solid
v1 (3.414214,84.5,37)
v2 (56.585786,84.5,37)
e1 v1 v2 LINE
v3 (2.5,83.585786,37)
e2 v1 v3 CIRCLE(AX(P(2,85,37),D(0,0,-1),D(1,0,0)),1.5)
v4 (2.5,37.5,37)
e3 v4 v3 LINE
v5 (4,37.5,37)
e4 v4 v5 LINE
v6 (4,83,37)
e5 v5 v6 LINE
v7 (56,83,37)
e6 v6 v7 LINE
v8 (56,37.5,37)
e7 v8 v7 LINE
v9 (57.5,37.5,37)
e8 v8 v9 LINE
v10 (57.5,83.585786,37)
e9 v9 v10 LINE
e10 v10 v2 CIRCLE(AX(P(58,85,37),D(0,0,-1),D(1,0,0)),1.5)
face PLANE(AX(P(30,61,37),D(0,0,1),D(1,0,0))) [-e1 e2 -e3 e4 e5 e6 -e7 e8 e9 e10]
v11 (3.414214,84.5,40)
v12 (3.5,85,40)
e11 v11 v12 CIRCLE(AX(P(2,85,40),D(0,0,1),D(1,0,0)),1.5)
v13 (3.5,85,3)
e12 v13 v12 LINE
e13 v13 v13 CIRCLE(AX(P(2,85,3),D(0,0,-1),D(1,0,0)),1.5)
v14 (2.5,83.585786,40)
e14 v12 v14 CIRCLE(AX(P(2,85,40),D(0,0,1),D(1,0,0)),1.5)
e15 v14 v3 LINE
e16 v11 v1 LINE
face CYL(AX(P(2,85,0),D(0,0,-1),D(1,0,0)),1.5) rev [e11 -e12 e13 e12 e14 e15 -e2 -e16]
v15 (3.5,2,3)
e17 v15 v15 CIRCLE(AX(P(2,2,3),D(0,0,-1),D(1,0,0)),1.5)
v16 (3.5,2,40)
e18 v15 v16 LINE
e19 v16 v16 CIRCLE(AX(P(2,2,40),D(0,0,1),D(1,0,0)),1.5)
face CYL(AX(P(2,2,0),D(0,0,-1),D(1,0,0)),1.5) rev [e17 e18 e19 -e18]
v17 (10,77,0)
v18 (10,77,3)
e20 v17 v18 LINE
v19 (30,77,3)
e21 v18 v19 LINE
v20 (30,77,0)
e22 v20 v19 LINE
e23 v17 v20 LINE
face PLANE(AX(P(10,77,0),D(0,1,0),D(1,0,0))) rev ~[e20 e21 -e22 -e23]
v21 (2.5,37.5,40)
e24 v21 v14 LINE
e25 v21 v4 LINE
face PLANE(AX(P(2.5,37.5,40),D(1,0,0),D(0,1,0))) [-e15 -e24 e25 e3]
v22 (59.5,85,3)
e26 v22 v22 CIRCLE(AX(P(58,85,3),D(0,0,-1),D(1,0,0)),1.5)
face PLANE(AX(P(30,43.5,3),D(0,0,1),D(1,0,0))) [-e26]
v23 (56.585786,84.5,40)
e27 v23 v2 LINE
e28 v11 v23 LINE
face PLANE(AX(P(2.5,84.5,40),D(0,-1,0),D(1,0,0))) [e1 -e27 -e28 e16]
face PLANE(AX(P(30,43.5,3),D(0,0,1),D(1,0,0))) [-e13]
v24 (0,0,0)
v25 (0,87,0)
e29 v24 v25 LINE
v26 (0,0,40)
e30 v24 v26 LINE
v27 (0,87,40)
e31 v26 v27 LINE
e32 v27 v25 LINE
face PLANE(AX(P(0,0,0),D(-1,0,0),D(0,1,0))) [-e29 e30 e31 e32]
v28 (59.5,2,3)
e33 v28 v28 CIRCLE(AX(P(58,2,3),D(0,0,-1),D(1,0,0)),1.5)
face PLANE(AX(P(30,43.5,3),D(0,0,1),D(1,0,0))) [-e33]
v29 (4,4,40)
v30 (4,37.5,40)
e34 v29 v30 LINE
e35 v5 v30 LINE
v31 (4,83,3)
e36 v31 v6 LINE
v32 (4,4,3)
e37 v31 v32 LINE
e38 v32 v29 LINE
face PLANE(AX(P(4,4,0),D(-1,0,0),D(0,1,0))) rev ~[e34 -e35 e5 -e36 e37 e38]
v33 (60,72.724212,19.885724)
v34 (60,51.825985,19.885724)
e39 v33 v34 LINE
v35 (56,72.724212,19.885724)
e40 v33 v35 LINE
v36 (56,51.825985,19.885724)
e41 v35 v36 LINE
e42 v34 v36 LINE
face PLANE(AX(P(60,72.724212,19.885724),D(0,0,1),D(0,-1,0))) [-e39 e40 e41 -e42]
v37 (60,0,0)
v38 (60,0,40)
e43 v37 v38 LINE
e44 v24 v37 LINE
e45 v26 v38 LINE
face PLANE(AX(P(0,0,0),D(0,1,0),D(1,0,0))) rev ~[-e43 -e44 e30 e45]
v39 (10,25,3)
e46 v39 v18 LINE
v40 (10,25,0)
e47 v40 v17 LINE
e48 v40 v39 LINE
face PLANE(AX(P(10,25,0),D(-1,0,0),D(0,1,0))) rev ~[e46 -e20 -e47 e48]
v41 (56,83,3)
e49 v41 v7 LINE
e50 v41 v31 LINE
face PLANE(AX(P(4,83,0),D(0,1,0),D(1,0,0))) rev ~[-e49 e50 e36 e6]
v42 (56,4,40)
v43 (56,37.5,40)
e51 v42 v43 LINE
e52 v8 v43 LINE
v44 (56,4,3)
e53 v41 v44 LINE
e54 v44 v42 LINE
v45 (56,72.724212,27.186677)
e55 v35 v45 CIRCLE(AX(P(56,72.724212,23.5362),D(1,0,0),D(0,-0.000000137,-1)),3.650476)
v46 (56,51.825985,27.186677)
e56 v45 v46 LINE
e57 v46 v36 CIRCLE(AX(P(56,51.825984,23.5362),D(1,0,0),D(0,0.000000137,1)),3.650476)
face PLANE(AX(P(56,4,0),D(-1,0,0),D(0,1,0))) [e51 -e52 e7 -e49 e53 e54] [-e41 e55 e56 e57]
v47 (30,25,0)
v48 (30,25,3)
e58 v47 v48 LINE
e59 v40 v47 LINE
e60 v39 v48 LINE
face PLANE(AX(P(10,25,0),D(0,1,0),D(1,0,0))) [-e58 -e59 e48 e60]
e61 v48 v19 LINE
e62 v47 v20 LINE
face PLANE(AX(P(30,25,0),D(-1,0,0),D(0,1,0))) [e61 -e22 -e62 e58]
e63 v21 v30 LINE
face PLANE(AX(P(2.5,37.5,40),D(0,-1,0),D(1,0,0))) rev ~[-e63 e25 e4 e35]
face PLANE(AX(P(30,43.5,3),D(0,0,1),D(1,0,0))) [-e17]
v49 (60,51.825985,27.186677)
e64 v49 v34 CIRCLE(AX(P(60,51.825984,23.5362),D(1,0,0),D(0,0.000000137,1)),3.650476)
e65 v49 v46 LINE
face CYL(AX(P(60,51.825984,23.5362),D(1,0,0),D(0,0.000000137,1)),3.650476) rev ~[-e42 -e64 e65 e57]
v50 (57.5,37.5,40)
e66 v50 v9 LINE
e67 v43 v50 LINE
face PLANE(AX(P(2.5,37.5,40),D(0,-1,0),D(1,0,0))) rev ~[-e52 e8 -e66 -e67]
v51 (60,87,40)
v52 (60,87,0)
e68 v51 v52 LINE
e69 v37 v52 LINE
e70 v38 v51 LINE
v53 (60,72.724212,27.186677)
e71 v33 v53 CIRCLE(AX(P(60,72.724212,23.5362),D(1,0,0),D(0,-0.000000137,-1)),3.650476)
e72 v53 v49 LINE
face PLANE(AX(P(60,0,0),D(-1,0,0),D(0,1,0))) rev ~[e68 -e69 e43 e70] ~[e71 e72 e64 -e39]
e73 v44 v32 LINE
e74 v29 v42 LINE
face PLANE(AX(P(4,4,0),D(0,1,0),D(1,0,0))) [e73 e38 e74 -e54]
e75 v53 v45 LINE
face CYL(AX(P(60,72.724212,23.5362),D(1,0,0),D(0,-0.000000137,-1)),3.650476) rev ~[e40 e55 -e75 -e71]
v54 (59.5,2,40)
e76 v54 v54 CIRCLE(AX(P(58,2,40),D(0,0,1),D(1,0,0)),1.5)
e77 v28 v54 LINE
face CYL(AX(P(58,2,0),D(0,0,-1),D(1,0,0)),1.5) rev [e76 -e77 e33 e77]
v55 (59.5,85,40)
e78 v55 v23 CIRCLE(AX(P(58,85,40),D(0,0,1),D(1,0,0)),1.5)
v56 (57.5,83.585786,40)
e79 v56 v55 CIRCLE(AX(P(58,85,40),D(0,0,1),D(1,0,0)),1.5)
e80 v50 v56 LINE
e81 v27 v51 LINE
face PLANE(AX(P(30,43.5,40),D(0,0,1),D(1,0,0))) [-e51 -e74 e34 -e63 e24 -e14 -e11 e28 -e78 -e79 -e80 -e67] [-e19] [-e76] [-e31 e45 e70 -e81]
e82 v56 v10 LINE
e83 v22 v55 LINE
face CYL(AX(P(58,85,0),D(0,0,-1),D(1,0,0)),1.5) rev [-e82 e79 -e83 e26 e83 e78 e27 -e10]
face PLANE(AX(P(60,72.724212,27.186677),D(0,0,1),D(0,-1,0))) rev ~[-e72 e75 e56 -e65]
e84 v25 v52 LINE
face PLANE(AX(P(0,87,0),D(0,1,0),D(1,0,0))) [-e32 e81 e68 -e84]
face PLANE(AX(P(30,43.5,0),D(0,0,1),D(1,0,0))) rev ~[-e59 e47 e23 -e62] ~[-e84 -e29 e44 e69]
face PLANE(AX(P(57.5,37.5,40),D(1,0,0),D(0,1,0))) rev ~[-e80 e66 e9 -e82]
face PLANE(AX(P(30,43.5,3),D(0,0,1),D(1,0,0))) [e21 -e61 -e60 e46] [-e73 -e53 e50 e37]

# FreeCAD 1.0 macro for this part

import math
import FreeCAD as App
import Part
import Sketcher

V = App.Vector
Q = App.Units.Quantity


def add_polygon(sketch, points):
    """Adds a closed chain of lines whose ends are joined by coincident constraints."""
    first, n = sketch.GeometryCount, len(points)
    for a, b in zip(points, points[1:] + points[:1]):
        sketch.addGeometry(Part.LineSegment(App.Vector(*a, 0), App.Vector(*b, 0)), False)
    for i in range(n):
        sketch.addConstraint(Sketcher.Constraint("Coincident", first + i, 2, first + (i + 1) % n, 1))

doc = App.newDocument("Part")
body = doc.addObject("PartDesign::Body", "Body")

sketch1 = body.newObject("Sketcher::SketchObject", "Sketch")
sketch1.AttachmentSupport = (doc.getObject("XY_Plane"), [""])
sketch1.MapMode = "FlatFace"
add_polygon(sketch1, [(0, 87), (0, 0), (60, 0), (60, 87)])
add_polygon(sketch1, [(30, 25), (10, 25), (10, 77), (30, 77)])
sketch1.addConstraint(Sketcher.Constraint("Vertical", 0))
sketch1.addConstraint(Sketcher.Constraint("Horizontal", 1))
sketch1.addConstraint(Sketcher.Constraint("Vertical", 2))
sketch1.addConstraint(Sketcher.Constraint("Horizontal", 3))
sketch1.addConstraint(Sketcher.Constraint("Horizontal", 4))
sketch1.addConstraint(Sketcher.Constraint("Vertical", 5))
sketch1.addConstraint(Sketcher.Constraint("Horizontal", 6))
sketch1.addConstraint(Sketcher.Constraint("Vertical", 7))
sketch1.addConstraint(Sketcher.Constraint("Coincident", 0, 2, -1, 1))
sketch1.addConstraint(Sketcher.Constraint("DistanceX", 1, 1, 1, 2, Q("60 mm")))
sketch1.addConstraint(Sketcher.Constraint("DistanceX", 4, 2, 4, 1, Q("20 mm")))
sketch1.addConstraint(Sketcher.Constraint("DistanceY", 0, 2, 0, 1, Q("87 mm")))
sketch1.addConstraint(Sketcher.Constraint("DistanceY", 5, 1, 5, 2, Q("52 mm")))
sketch1.addConstraint(Sketcher.Constraint("DistanceX", -1, 1, 4, 2, Q("10 mm")))
sketch1.addConstraint(Sketcher.Constraint("DistanceY", -1, 1, 4, 2, Q("25 mm")))
pad1 = body.newObject("PartDesign::Pad", "Pad")
pad1.Profile = sketch1
pad1.Length = 3

sketch2 = body.newObject("Sketcher::SketchObject", "Sketch001")
sketch2.AttachmentSupport = (doc.getObject("XY_Plane"), [""])
sketch2.MapMode = "FlatFace"
add_polygon(sketch2, [(0, 87), (0, 0), (60, 0), (60, 87)])
sketch2.addGeometry(Part.Circle(V(2, 2, 0), V(0, 0, 1), 1.5), False)
sketch2.addGeometry(Part.Circle(V(58, 2, 0), V(0, 0, 1), 1.5), False)
sketch2.addGeometry(Part.Circle(V(2, 85, 0), V(0, 0, 1), 1.5), False)
add_polygon(sketch2, [(56, 4), (4, 4), (4, 83), (56, 83)])
sketch2.addGeometry(Part.Circle(V(58, 85, 0), V(0, 0, 1), 1.5), False)
sketch2.addConstraint(Sketcher.Constraint("Vertical", 0))
sketch2.addConstraint(Sketcher.Constraint("Horizontal", 1))
sketch2.addConstraint(Sketcher.Constraint("Vertical", 2))
sketch2.addConstraint(Sketcher.Constraint("Horizontal", 3))
sketch2.addConstraint(Sketcher.Constraint("Horizontal", 7))
sketch2.addConstraint(Sketcher.Constraint("Vertical", 8))
sketch2.addConstraint(Sketcher.Constraint("Horizontal", 9))
sketch2.addConstraint(Sketcher.Constraint("Vertical", 10))
sketch2.addConstraint(Sketcher.Constraint("Coincident", 0, 2, -1, 1))
sketch2.addConstraint(Sketcher.Constraint("Equal", 4, 5))
sketch2.addConstraint(Sketcher.Constraint("Equal", 5, 6))
sketch2.addConstraint(Sketcher.Constraint("Equal", 6, 11))
sketch2.addConstraint(Sketcher.Constraint("Horizontal", 4, 3, 5, 3))
sketch2.addConstraint(Sketcher.Constraint("Horizontal", 6, 3, 11, 3))
sketch2.addConstraint(Sketcher.Constraint("Vertical", 4, 3, 6, 3))
sketch2.addConstraint(Sketcher.Constraint("Vertical", 5, 3, 11, 3))
sketch2.addConstraint(Sketcher.Constraint("Diameter", 4, Q("3 mm")))
sketch2.addConstraint(Sketcher.Constraint("DistanceX", 1, 1, 1, 2, Q("60 mm")))
sketch2.addConstraint(Sketcher.Constraint("DistanceX", 7, 2, 7, 1, Q("52 mm")))
sketch2.addConstraint(Sketcher.Constraint("DistanceY", 0, 2, 0, 1, Q("87 mm")))
sketch2.addConstraint(Sketcher.Constraint("DistanceY", 8, 1, 8, 2, Q("79 mm")))
sketch2.addConstraint(Sketcher.Constraint("DistanceX", -1, 1, 4, 3, Q("2 mm")))
sketch2.addConstraint(Sketcher.Constraint("DistanceY", -1, 1, 4, 3, Q("2 mm")))
sketch2.addConstraint(Sketcher.Constraint("DistanceX", -1, 1, 5, 3, Q("58 mm")))
sketch2.addConstraint(Sketcher.Constraint("DistanceY", -1, 1, 6, 3, Q("85 mm")))
sketch2.addConstraint(Sketcher.Constraint("DistanceX", -1, 1, 7, 2, Q("4 mm")))
sketch2.addConstraint(Sketcher.Constraint("DistanceY", -1, 1, 7, 2, Q("4 mm")))
pad2 = body.newObject("PartDesign::Pad", "Pad001")
pad2.Profile = sketch2
pad2.Length = 40

sketch3 = body.newObject("Sketcher::SketchObject", "Sketch002")
sketch3.AttachmentSupport = (doc.getObject("XY_Plane"), [""])
sketch3.MapMode = "FlatFace"
sketch3.AttachmentOffset = App.Placement(V(0, 0, 40), App.Rotation())
add_polygon(sketch3, [(2, 84), (2, 38), (58, 38), (58, 84)])
sketch3.addConstraint(Sketcher.Constraint("Vertical", 0))
sketch3.addConstraint(Sketcher.Constraint("Horizontal", 1))
sketch3.addConstraint(Sketcher.Constraint("Vertical", 2))
sketch3.addConstraint(Sketcher.Constraint("Horizontal", 3))
sketch3.addConstraint(Sketcher.Constraint("DistanceX", 1, 1, 1, 2, Q("55 mm")))
sketch3.addConstraint(Sketcher.Constraint("DistanceY", 0, 2, 0, 1, Q("47 mm")))
sketch3.addConstraint(Sketcher.Constraint("DistanceX", -1, 1, 0, 2, Q("2.5 mm")))
sketch3.addConstraint(Sketcher.Constraint("DistanceY", -1, 1, 0, 2, Q("37.5 mm")))
pocket1 = body.newObject("PartDesign::Pocket", "Pocket")
pocket1.Profile = sketch3
pocket1.Length = 3

sketch4 = body.newObject("Sketcher::SketchObject", "Sketch003")
sketch4.AttachmentSupport = (doc.getObject("YZ_Plane"), [""])
sketch4.MapMode = "FlatFace"
sketch4.AttachmentOffset = App.Placement(V(0, 0, 60), App.Rotation())
sketch4.addGeometry(Part.ArcOfCircle(Part.Circle(V(72.7, 23.5, 0), V(0, 0, 1), 3.7), math.radians(-90), math.radians(90)), False)
sketch4.addGeometry(Part.LineSegment(V(72.7, 27.2, 0), V(51.8, 27.2, 0)), False)
sketch4.addGeometry(Part.ArcOfCircle(Part.Circle(V(51.8, 23.5, 0), V(0, 0, 1), 3.7), math.radians(90), math.radians(270)), False)
sketch4.addGeometry(Part.LineSegment(V(51.8, 19.9, 0), V(72.7, 19.9, 0)), False)
sketch4.addConstraint(Sketcher.Constraint("Tangent", 0, 2, 1, 1))
sketch4.addConstraint(Sketcher.Constraint("Tangent", 1, 2, 2, 1))
sketch4.addConstraint(Sketcher.Constraint("Tangent", 2, 2, 3, 1))
sketch4.addConstraint(Sketcher.Constraint("Tangent", 3, 2, 0, 1))
sketch4.addConstraint(Sketcher.Constraint("Horizontal", 1))
sketch4.addConstraint(Sketcher.Constraint("Horizontal", 3))
sketch4.addConstraint(Sketcher.Constraint("Radius", 0, Q("3.650476 mm")))
sketch4.addConstraint(Sketcher.Constraint("DistanceY", -1, 1, 0, 3, Q("23.5362 mm")))
sketch4.addConstraint(Sketcher.Constraint("DistanceX", 1, 2, 1, 1, Q("20.898227 mm")))
sketch4.addConstraint(Sketcher.Constraint("DistanceX", -1, 1, 0, 2, Q("72.724212 mm")))
pocket2 = body.newObject("PartDesign::Pocket", "Pocket001")
pocket2.Profile = sketch4
pocket2.Length = 4

doc.recompute()
